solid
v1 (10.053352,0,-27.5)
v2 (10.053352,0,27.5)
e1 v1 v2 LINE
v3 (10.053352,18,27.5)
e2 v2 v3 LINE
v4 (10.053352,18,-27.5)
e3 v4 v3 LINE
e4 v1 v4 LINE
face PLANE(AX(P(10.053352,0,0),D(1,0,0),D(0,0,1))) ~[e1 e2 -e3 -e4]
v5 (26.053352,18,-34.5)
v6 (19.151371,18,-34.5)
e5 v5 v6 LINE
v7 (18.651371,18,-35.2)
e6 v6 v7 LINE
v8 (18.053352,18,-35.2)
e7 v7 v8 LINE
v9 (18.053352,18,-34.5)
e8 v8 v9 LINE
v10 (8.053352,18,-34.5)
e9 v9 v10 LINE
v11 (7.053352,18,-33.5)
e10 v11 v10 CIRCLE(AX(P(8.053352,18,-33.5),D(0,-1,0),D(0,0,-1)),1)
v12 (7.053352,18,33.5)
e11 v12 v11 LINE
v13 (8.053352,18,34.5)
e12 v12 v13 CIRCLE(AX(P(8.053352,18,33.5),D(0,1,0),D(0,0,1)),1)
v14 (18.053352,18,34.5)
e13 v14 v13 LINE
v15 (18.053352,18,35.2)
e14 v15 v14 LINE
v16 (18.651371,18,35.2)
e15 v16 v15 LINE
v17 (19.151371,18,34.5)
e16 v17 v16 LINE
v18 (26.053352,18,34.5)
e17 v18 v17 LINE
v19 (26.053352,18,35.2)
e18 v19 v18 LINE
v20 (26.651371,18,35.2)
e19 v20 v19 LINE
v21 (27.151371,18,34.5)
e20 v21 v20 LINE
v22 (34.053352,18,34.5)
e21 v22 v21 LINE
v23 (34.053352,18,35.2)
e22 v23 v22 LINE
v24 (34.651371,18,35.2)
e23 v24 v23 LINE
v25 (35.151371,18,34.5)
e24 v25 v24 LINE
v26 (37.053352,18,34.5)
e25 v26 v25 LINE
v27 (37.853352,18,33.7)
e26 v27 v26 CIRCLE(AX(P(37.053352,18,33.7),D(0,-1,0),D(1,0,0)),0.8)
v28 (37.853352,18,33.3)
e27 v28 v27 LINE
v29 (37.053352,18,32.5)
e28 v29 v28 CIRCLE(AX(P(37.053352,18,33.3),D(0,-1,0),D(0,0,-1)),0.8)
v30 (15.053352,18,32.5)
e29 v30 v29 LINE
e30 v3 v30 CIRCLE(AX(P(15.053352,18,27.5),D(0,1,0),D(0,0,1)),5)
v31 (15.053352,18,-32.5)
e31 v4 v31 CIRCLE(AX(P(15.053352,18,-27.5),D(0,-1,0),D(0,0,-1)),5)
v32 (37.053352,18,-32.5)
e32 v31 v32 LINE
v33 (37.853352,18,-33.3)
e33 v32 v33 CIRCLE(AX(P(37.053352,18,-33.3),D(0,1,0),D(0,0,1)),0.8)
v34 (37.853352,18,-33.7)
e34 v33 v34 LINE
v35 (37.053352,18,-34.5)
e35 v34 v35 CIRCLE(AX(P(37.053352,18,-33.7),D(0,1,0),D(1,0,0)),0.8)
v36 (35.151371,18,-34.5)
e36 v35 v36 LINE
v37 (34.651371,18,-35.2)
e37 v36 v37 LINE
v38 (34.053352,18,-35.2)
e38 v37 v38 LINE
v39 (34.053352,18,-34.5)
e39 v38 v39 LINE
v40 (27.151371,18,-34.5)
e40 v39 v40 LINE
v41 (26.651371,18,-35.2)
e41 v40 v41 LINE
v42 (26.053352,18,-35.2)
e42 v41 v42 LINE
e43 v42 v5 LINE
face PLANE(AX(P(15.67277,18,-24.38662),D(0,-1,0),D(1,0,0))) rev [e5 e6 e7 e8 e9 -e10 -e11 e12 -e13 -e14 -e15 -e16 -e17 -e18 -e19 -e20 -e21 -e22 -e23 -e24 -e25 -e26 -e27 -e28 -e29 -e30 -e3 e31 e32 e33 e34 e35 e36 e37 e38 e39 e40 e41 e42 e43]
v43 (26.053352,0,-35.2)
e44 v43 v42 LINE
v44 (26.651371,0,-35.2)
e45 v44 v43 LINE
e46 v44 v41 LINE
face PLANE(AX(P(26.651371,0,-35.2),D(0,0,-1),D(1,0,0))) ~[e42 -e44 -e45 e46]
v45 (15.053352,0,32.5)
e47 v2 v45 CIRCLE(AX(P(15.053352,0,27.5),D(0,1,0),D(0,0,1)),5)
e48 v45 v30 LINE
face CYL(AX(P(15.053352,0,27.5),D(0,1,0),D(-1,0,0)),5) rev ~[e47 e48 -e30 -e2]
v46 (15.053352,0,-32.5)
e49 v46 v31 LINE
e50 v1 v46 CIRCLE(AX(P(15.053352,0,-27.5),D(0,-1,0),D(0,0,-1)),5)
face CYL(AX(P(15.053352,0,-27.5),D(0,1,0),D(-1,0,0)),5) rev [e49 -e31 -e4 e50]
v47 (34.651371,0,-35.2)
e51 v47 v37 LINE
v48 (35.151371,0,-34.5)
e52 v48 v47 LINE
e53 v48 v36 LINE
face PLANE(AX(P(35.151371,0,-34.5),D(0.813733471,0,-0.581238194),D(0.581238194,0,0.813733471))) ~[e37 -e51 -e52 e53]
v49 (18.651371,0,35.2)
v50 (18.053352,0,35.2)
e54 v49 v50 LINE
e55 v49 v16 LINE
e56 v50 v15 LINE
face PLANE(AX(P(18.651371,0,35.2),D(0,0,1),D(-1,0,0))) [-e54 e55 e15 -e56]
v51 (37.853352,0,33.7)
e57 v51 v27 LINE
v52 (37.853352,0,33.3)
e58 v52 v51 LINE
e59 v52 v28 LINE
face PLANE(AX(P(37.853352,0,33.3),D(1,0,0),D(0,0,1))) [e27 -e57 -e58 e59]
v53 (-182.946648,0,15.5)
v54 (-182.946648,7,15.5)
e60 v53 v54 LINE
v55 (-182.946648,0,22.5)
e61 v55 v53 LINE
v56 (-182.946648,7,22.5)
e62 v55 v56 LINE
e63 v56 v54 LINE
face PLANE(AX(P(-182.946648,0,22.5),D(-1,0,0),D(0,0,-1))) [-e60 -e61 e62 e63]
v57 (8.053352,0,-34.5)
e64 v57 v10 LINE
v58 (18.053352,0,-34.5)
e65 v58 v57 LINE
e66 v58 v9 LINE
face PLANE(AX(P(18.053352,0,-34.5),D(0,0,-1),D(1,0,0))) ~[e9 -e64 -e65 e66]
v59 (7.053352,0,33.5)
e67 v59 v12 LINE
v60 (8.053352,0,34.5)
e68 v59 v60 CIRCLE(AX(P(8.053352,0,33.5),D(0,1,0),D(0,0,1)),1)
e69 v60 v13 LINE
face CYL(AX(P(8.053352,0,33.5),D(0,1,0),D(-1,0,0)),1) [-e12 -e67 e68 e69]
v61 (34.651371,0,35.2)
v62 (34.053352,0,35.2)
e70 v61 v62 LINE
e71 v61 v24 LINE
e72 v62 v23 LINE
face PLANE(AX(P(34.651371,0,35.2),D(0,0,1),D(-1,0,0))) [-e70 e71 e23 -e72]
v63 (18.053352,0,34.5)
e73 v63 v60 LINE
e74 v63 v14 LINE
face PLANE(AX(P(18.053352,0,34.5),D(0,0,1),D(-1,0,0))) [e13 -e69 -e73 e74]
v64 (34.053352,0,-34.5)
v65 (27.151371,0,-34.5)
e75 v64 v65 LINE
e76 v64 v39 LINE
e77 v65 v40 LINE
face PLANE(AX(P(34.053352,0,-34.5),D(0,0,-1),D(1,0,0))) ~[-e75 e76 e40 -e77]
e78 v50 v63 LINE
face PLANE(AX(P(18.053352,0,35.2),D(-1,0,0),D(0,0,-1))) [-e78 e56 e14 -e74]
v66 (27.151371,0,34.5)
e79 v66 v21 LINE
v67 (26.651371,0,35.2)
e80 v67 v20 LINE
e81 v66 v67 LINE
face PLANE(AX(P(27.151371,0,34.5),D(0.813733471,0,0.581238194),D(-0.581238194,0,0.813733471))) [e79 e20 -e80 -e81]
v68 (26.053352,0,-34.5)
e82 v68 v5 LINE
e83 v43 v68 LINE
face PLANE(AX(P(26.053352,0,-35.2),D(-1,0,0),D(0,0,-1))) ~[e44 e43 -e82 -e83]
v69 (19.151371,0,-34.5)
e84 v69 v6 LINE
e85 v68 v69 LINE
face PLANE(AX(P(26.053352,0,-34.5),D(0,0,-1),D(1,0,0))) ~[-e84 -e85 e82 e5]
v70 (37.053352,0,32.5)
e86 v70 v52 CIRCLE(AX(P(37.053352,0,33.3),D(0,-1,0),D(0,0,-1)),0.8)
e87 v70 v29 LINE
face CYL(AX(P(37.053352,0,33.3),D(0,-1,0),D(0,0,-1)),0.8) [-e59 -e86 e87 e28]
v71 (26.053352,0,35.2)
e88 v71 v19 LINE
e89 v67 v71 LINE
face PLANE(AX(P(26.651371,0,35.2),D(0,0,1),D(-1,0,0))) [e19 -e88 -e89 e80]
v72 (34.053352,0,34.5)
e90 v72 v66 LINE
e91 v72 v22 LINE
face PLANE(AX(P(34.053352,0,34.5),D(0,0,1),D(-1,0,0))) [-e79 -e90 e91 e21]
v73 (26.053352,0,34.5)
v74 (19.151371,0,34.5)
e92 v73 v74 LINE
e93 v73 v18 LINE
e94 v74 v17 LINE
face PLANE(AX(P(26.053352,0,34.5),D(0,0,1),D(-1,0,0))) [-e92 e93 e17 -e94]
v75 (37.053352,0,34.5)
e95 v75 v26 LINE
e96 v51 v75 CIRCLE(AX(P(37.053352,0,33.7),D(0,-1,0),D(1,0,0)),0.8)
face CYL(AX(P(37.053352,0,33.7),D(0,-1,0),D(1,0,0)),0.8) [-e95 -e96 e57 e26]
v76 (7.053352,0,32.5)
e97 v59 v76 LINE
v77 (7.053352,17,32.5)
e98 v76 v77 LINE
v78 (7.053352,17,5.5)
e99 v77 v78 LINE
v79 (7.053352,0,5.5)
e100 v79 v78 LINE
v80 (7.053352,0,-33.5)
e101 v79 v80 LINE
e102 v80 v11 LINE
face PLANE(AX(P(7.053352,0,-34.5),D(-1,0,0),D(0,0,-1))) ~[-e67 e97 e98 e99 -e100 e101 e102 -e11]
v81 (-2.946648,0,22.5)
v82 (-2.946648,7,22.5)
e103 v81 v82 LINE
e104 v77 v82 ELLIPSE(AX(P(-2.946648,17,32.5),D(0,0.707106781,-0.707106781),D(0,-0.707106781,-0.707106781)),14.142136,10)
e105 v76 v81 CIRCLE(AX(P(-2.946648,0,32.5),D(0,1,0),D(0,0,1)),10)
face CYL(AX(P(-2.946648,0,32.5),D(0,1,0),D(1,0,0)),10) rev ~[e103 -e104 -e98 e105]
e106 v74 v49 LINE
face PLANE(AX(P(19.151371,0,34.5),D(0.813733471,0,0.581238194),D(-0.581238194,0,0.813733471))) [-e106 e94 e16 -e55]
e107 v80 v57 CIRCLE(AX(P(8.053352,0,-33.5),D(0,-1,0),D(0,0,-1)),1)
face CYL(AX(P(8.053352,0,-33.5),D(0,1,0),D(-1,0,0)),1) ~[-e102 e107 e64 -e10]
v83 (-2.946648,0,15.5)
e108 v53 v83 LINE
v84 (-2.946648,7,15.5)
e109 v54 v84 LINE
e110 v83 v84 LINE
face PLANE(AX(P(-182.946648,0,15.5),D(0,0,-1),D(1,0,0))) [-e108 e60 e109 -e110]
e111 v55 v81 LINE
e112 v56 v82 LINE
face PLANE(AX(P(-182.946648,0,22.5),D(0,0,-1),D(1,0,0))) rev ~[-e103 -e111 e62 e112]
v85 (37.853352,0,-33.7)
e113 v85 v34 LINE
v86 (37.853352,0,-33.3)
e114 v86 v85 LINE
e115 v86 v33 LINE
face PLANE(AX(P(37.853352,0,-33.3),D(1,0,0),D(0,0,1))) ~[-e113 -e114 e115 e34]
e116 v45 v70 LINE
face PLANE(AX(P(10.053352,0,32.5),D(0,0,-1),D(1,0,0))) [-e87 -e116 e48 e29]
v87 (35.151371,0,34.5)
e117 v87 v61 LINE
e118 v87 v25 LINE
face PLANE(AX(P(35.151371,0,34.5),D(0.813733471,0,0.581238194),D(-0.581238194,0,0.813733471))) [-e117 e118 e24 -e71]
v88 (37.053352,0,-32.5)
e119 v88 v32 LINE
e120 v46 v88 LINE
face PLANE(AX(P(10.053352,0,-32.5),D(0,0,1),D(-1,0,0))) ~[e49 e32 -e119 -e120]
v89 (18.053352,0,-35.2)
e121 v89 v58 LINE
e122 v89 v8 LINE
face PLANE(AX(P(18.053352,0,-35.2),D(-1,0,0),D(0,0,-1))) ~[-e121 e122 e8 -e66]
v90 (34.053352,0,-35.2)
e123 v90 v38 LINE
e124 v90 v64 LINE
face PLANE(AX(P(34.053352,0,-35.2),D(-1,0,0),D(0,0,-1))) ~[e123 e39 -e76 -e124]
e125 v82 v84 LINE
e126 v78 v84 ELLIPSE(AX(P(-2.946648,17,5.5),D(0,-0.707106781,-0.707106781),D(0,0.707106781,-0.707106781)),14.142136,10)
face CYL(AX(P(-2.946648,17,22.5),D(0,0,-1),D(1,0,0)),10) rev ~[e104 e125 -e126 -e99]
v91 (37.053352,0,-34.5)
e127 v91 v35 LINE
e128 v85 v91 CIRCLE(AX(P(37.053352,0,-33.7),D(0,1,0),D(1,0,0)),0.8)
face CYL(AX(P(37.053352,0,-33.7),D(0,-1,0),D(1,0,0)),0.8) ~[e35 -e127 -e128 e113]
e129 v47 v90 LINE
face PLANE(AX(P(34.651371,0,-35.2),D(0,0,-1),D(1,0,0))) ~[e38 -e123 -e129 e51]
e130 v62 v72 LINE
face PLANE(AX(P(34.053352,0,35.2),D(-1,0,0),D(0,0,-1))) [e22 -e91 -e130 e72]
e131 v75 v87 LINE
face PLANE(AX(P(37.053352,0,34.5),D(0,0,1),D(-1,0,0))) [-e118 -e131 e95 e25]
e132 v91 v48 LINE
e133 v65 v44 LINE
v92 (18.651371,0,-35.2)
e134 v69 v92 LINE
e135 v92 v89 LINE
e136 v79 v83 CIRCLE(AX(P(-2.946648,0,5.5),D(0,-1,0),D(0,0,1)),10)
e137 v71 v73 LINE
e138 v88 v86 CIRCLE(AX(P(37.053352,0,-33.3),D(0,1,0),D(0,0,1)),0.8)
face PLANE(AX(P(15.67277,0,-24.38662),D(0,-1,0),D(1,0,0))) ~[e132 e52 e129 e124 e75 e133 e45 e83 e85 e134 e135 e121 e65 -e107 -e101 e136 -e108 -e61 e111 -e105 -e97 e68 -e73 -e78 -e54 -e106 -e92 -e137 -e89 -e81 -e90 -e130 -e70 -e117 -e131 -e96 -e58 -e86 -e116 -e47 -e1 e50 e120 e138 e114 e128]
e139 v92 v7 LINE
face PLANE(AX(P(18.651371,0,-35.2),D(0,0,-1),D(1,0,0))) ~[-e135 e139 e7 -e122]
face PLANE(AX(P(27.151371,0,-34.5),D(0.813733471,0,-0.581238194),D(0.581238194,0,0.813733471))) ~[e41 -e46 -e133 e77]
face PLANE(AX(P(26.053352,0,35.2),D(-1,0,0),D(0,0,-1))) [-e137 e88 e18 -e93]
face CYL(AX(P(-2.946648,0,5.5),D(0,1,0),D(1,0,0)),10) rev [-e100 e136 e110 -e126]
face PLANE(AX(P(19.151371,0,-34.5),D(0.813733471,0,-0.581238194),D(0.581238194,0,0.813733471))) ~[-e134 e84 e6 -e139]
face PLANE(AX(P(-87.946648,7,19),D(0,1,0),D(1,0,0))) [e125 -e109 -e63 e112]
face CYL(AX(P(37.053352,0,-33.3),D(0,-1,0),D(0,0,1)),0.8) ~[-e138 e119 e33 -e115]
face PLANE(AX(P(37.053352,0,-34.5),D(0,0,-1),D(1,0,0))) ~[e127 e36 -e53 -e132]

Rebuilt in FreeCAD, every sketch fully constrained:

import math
import FreeCAD as App
import Part
import Sketcher
from FreeCAD import Vector
Q = App.Units.Quantity


def edges_at(feature, points):
    """Names of the edges that pass closest to the given points."""
    edges = feature.Shape.Edges
    near = lambda p: min(range(len(edges)), key=lambda i: edges[i].distToShape(Part.Vertex(*p))[0])
    return sorted({f"Edge{near(p) + 1}" for p in points})

doc = App.newDocument("Part")
body = doc.addObject("PartDesign::Body", "Body")

# Sketch on XZ plane
sketch1 = body.newObject("Sketcher::SketchObject", "Sketch")
sketch1.AttachmentSupport = (doc.getObject("XZ_Plane"), [""])
sketch1.MapMode = "FlatFace"
sketch1.addGeometry([
    Part.ArcOfCircle(Part.Circle(Vector(37.05, 33.3, 0), Vector(0, 0, 1), 0.8), math.radians(-90), math.radians(0)),  # 0
    Part.LineSegment(Vector(37.05, 32.5, 0), Vector(10.05, 32.5, 0)),  # 1
    Part.LineSegment(Vector(10.05, 32.5, 0), Vector(10.05, 0, 0)),  # 2
    Part.LineSegment(Vector(10.05, 0, 0), Vector(7.05, 0, 0)),  # 3
    Part.LineSegment(Vector(7.05, 0, 0), Vector(7.05, 34.5, 0)),  # 4
    Part.LineSegment(Vector(7.05, 34.5, 0), Vector(18.05, 34.5, 0)),  # 5
    Part.LineSegment(Vector(18.05, 34.5, 0), Vector(18.05, 35.2, 0)),  # 6
    Part.LineSegment(Vector(18.05, 35.2, 0), Vector(18.65, 35.2, 0)),  # 7
    Part.LineSegment(Vector(18.65, 35.2, 0), Vector(19.15, 34.5, 0)),  # 8
    Part.LineSegment(Vector(19.15, 34.5, 0), Vector(26.05, 34.5, 0)),  # 9
    Part.LineSegment(Vector(26.05, 34.5, 0), Vector(26.05, 35.2, 0)),  # 10
    Part.LineSegment(Vector(26.05, 35.2, 0), Vector(26.65, 35.2, 0)),  # 11
    Part.LineSegment(Vector(26.65, 35.2, 0), Vector(27.15, 34.5, 0)),  # 12
    Part.LineSegment(Vector(27.15, 34.5, 0), Vector(34.05, 34.5, 0)),  # 13
    Part.LineSegment(Vector(34.05, 34.5, 0), Vector(34.05, 35.2, 0)),  # 14
    Part.LineSegment(Vector(34.05, 35.2, 0), Vector(34.65, 35.2, 0)),  # 15
    Part.LineSegment(Vector(34.65, 35.2, 0), Vector(35.15, 34.5, 0)),  # 16
    Part.LineSegment(Vector(35.15, 34.5, 0), Vector(37.05, 34.5, 0)),  # 17
    Part.ArcOfCircle(Part.Circle(Vector(37.05, 33.7, 0), Vector(0, 0, 1), 0.8), math.radians(0), math.radians(90)),  # 18
    Part.LineSegment(Vector(37.85, 33.7, 0), Vector(37.85, 33.3, 0)),  # 19
], False)
sketch1.addConstraint([
    Sketcher.Constraint("Tangent", 0, 1, 1, 1),
    Sketcher.Constraint("Coincident", 1, 2, 2, 1),
    Sketcher.Constraint("Coincident", 2, 2, 3, 1),
    Sketcher.Constraint("Coincident", 3, 2, 4, 1),
    Sketcher.Constraint("Coincident", 4, 2, 5, 1),
    Sketcher.Constraint("Coincident", 5, 2, 6, 1),
    Sketcher.Constraint("Coincident", 6, 2, 7, 1),
    Sketcher.Constraint("Coincident", 7, 2, 8, 1),
    Sketcher.Constraint("Coincident", 8, 2, 9, 1),
    Sketcher.Constraint("Coincident", 9, 2, 10, 1),
    Sketcher.Constraint("Coincident", 10, 2, 11, 1),
    Sketcher.Constraint("Coincident", 11, 2, 12, 1),
    Sketcher.Constraint("Coincident", 12, 2, 13, 1),
    Sketcher.Constraint("Coincident", 13, 2, 14, 1),
    Sketcher.Constraint("Coincident", 14, 2, 15, 1),
    Sketcher.Constraint("Coincident", 15, 2, 16, 1),
    Sketcher.Constraint("Coincident", 16, 2, 17, 1),
    Sketcher.Constraint("Tangent", 17, 2, 18, 2),
    Sketcher.Constraint("Tangent", 18, 1, 19, 1),
    Sketcher.Constraint("Tangent", 19, 2, 0, 2),
    Sketcher.Constraint("Horizontal", 1),
    Sketcher.Constraint("Vertical", 2),
    Sketcher.Constraint("Horizontal", 3),
    Sketcher.Constraint("Vertical", 4),
    Sketcher.Constraint("Horizontal", 5),
    Sketcher.Constraint("Vertical", 6),
    Sketcher.Constraint("Horizontal", 7),
    Sketcher.Constraint("Horizontal", 9),
    Sketcher.Constraint("Vertical", 10),
    Sketcher.Constraint("Horizontal", 11),
    Sketcher.Constraint("Horizontal", 13),
    Sketcher.Constraint("Vertical", 14),
    Sketcher.Constraint("Horizontal", 15),
    Sketcher.Constraint("Horizontal", 17),
    Sketcher.Constraint("Vertical", 19),
    Sketcher.Constraint("Equal", 0, 18),
    Sketcher.Constraint("PointOnObject", 2, 2, -1),
    Sketcher.Constraint("Parallel", 8, 12),
    Sketcher.Constraint("Parallel", 12, 16),
    Sketcher.Constraint("Horizontal", 5, 2, 8, 2),
    Sketcher.Constraint("Horizontal", 7, 2, 10, 2),
    Sketcher.Constraint("Horizontal", 9, 2, 12, 2),
    Sketcher.Constraint("Horizontal", 11, 2, 14, 2),
    Sketcher.Constraint("Horizontal", 13, 2, 16, 2),
    Sketcher.Constraint("Equal", 7, 11),
    Sketcher.Constraint("Equal", 9, 13),
    Sketcher.Constraint("Equal", 11, 15),
    Sketcher.Constraint("Radius", 0, Q("0.8 mm")),
    Sketcher.Constraint("DistanceX", 1, 2, 1, 1, Q("27 mm")),
    Sketcher.Constraint("DistanceX", 3, 2, 3, 1, Q("3 mm")),
    Sketcher.Constraint("DistanceX", 5, 1, 5, 2, Q("11 mm")),
    Sketcher.Constraint("DistanceY", 2, 2, 2, 1, Q("32.5 mm")),
    Sketcher.Constraint("DistanceY", 4, 1, 4, 2, Q("34.5 mm")),
    Sketcher.Constraint("DistanceY", 6, 1, 6, 2, Q("0.7 mm")),
    Sketcher.Constraint("DistanceX", 5, 2, 9, 2, Q("8 mm")),
    Sketcher.Constraint("DistanceX", 7, 2, 8, 2, Q("0.5 mm")),
    Sketcher.Constraint("DistanceX", 7, 1, 7, 2, Q("0.598019 mm")),
    Sketcher.Constraint("DistanceX", -1, 1, 7, 2, Q("18.651371 mm")),
])
pad1 = body.newObject("PartDesign::Pad", "Pad")
pad1.Profile = sketch1
pad1.Length = 18
pad1.Reversed = True
doc.recompute()

fillet = body.newObject("PartDesign::Fillet", "Fillet")
fillet.Base = (pad1, edges_at(pad1, [(10.053, 9, 32.5)]))
fillet.Radius = 5
doc.recompute()

fillet2 = body.newObject("PartDesign::Fillet", "Fillet001")
fillet2.Base = (fillet, edges_at(fillet, [(7.053, 9, 34.5)]))
fillet2.Radius = 1
body2 = doc.addObject("PartDesign::Body", "Body001")
doc.recompute()

body2.BaseFeature = body
doc.recompute()

mirroring = doc.addObject("Part::Mirroring", "Mirroring")
mirroring.Source = body
mirroring.Base = Vector(0, 18, 0)
mirroring.Normal = Vector(0, 0, -1)
body3 = doc.addObject("PartDesign::Body", "Body002")
body3.BaseFeature = mirroring
boolean = body2.newObject("PartDesign::Boolean", "Boolean")
boolean.Type = "Fuse"
boolean.addObjects([body3])
doc.recompute()

# Sketch on XZ plane
sketch2 = body2.newObject("Sketcher::SketchObject", "Sketch001")
sketch2.AttachmentSupport = (doc.getObject("XZ_Plane001"), [""])
sketch2.MapMode = "FlatFace"
sketch2.addGeometry([
    Part.LineSegment(Vector(-183, 16, 0), Vector(-183, 22, 0)),
    Part.LineSegment(Vector(-183, 22, 0), Vector(7, 22, 0)),
    Part.LineSegment(Vector(7, 22, 0), Vector(7, 16, 0)),
    Part.LineSegment(Vector(7, 16, 0), Vector(-183, 16, 0)),
], False)
sketch2.addConstraint([
    Sketcher.Constraint("Coincident", 0, 2, 1, 1),
    Sketcher.Constraint("Coincident", 1, 2, 2, 1),
    Sketcher.Constraint("Coincident", 2, 2, 3, 1),
    Sketcher.Constraint("Coincident", 3, 2, 0, 1),
    Sketcher.Constraint("Vertical", 0),
    Sketcher.Constraint("Horizontal", 1),
    Sketcher.Constraint("Vertical", 2),
    Sketcher.Constraint("Horizontal", 3),
    Sketcher.Constraint("DistanceX", 1, 1, 1, 2, Q("190 mm")),
    Sketcher.Constraint("DistanceY", 0, 1, 0, 2, Q("7 mm")),
    Sketcher.Constraint("DistanceY", -1, 1, 0, 2, Q("22.5 mm")),
    Sketcher.Constraint("DistanceX", 0, 2, -1, 1, Q("182.946648 mm")),
])
pad2 = body2.newObject("PartDesign::Pad", "Pad001")
pad2.Profile = sketch2
pad2.Length = 7
pad2.Reversed = True
doc.recompute()

fillet3 = body2.newObject("PartDesign::Fillet", "Fillet002")
fillet3.Base = (pad2, edges_at(pad2, [(7.053, 7, 19), (7.053, 3.5, 22.5), (7.053, 3.5, 15.5)]))
fillet3.Radius = 10
mirroring.Visibility = False

doc.recompute()
